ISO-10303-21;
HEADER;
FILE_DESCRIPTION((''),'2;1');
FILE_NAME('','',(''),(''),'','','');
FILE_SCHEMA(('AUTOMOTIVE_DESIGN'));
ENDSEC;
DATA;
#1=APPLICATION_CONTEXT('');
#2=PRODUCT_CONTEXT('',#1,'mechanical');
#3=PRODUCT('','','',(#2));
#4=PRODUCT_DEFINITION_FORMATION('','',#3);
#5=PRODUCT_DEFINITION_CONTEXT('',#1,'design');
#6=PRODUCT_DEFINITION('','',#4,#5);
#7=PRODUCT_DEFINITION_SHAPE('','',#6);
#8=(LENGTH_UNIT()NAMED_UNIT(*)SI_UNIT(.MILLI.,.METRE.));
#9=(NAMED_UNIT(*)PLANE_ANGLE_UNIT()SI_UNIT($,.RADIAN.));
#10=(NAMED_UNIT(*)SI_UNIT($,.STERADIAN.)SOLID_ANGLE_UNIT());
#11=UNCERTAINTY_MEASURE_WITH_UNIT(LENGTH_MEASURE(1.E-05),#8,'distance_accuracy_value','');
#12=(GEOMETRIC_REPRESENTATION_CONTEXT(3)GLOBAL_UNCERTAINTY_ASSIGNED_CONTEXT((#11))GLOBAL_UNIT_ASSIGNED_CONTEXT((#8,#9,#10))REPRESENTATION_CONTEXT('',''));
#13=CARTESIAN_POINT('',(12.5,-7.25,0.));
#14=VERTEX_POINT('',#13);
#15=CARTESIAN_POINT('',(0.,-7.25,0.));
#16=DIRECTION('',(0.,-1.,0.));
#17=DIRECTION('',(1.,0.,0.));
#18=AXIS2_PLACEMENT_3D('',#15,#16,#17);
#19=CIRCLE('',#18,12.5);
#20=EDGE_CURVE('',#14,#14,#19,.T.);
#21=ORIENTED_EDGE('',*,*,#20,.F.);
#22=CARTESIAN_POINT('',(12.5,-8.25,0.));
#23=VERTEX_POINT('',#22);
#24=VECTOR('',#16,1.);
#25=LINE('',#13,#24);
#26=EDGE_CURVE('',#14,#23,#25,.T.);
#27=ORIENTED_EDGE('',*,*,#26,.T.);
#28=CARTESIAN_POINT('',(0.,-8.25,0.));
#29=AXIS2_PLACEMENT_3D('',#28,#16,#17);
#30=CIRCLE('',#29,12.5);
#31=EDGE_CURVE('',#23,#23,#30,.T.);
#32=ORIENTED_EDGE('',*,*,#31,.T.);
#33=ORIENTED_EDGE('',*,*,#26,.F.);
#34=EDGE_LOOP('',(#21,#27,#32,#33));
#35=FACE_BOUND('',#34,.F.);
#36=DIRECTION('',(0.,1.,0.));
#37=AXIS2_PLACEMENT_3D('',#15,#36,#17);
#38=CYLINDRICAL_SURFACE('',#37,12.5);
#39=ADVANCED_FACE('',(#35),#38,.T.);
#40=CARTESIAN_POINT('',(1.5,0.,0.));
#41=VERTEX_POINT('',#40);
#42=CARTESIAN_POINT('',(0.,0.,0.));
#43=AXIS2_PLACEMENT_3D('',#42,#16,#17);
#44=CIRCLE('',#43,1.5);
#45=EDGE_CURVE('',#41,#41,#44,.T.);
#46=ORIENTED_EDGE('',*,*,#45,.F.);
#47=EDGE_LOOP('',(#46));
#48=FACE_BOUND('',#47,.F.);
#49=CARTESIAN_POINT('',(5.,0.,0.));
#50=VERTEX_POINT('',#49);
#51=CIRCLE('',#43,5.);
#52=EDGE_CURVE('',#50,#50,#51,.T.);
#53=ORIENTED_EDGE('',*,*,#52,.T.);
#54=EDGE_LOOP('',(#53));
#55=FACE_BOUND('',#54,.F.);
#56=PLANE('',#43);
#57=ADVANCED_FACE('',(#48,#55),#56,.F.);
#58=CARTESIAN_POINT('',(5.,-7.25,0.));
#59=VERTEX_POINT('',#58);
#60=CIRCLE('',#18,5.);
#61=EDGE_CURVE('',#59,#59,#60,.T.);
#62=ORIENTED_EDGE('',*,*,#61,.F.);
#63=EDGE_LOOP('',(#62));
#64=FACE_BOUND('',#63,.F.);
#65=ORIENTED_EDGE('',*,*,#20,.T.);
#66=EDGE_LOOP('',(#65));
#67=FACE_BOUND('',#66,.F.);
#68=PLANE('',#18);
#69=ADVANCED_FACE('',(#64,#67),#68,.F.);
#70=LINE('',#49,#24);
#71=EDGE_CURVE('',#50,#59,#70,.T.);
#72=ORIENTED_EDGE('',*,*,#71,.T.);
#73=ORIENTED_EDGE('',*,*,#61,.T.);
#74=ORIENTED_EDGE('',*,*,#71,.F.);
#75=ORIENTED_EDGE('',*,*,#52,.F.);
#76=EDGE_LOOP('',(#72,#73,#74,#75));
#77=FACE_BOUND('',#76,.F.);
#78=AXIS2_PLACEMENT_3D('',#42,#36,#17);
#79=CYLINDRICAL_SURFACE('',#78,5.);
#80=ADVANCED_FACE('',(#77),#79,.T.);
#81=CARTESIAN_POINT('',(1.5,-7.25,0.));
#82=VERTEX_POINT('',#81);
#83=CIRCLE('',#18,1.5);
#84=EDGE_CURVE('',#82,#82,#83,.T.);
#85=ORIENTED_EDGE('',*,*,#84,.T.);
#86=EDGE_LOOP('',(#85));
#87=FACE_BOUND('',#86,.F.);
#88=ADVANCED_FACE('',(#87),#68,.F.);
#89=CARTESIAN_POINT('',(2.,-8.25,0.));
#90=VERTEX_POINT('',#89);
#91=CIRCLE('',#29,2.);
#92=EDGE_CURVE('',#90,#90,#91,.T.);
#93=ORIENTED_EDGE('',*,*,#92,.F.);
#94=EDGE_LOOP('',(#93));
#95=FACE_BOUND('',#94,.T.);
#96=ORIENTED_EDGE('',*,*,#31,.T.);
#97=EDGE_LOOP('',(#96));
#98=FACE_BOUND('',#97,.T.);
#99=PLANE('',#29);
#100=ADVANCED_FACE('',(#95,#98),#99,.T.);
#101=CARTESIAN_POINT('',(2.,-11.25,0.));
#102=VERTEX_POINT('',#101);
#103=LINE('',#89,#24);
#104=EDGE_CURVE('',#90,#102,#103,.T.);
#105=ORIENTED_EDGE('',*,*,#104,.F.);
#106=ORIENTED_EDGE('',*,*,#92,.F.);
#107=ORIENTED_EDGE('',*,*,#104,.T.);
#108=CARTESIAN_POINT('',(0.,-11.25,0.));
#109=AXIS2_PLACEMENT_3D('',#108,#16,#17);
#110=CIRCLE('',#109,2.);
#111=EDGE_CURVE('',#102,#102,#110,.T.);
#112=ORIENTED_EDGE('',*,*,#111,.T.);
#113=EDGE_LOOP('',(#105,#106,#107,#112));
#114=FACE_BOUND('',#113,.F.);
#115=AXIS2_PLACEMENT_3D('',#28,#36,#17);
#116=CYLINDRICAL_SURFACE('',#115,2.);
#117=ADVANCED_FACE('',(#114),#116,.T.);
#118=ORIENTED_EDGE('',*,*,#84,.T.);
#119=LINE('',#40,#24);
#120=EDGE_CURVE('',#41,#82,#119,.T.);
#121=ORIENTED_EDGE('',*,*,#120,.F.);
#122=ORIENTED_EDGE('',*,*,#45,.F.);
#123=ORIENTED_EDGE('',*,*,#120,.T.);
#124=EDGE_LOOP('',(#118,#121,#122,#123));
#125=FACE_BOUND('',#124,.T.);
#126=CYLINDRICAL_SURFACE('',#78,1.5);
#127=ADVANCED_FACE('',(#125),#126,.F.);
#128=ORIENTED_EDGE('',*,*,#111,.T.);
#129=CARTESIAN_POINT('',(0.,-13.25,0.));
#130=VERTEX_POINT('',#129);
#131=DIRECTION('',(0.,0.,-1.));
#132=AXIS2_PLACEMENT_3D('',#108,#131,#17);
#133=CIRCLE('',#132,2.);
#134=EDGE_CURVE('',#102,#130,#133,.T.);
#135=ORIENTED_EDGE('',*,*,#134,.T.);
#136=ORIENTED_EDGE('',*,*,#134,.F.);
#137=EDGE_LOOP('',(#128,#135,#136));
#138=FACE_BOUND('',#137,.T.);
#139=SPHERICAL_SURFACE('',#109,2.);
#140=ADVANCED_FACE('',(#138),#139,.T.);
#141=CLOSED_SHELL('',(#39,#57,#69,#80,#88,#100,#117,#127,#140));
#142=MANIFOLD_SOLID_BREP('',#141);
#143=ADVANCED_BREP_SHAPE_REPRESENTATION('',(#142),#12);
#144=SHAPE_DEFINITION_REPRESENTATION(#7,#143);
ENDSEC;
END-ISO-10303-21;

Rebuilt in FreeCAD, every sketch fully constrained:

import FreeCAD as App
import Part
import Sketcher


def edges_at(feature, points):
    """Names of the edges that pass closest to the given points."""
    edges = feature.Shape.Edges
    near = lambda p: min(range(len(edges)), key=lambda i: edges[i].distToShape(Part.Vertex(*p))[0])
    return sorted({f"Edge{near(p) + 1}" for p in points})

doc = App.newDocument("Part")
body = doc.addObject("PartDesign::Body", "Body")

# Sketch on XZ plane
sketch1 = doc.addObject("Sketcher::SketchObject", "Sketch")
body.addObject(sketch1)
sketch1.AttachmentSupport = (doc.XZ_Plane, [""])
sketch1.MapMode = "FlatFace"
sketch1.addGeometry(Part.Circle(App.Vector(0, 0, 0), App.Vector(0, 0, 1), 5), False)
sketch1.addGeometry(Part.Circle(App.Vector(0, 0, 0), App.Vector(0, 0, 1), 1.5), False)
sketch1.addConstraint(Sketcher.Constraint("Coincident", 0, 3, -1, 1))
sketch1.addConstraint(Sketcher.Constraint("Coincident", 1, 3, -1, 1))
sketch1.addConstraint(Sketcher.Constraint("Diameter", 0, 10.0))
sketch1.addConstraint(Sketcher.Constraint("Diameter", 1, 3.0))
pad1 = doc.addObject("PartDesign::Pad", "Pad")
body.addObject(pad1)
pad1.Profile = sketch1
pad1.Length = 7.25

# Sketch on XZ plane
sketch2 = doc.addObject("Sketcher::SketchObject", "Sketch001")
body.addObject(sketch2)
sketch2.AttachmentSupport = (doc.XZ_Plane, [""])
sketch2.MapMode = "FlatFace"
sketch2.AttachmentOffset = App.Placement(App.Vector(0, 0, 7.25), App.Rotation())
sketch2.addGeometry(Part.Circle(App.Vector(0, 0, 0), App.Vector(0, 0, 1), 12), False)
sketch2.addConstraint(Sketcher.Constraint("Coincident", 0, 3, -1, 1))
sketch2.addConstraint(Sketcher.Constraint("Diameter", 0, 25.0))
pad2 = doc.addObject("PartDesign::Pad", "Pad001")
body.addObject(pad2)
pad2.Profile = sketch2
pad2.Length = 1

# Sketch on XZ plane
sketch3 = doc.addObject("Sketcher::SketchObject", "Sketch002")
body.addObject(sketch3)
sketch3.AttachmentSupport = (doc.XZ_Plane, [""])
sketch3.MapMode = "FlatFace"
sketch3.AttachmentOffset = App.Placement(App.Vector(0, 0, 8.25), App.Rotation())
sketch3.addGeometry(Part.Circle(App.Vector(0, 0, 0), App.Vector(0, 0, 1), 2), False)
sketch3.addConstraint(Sketcher.Constraint("Coincident", 0, 3, -1, 1))
sketch3.addConstraint(Sketcher.Constraint("Diameter", 0, 4.0))
pad3 = doc.addObject("PartDesign::Pad", "Pad002")
body.addObject(pad3)
pad3.Profile = sketch3
pad3.Length = 5
doc.recompute()

fillet = doc.addObject("PartDesign::Fillet", "Fillet")
body.addObject(fillet)
fillet.Base = (pad3, edges_at(pad3, [(-2, -13.25, 0)]))
fillet.Radius = 2

doc.recompute()
